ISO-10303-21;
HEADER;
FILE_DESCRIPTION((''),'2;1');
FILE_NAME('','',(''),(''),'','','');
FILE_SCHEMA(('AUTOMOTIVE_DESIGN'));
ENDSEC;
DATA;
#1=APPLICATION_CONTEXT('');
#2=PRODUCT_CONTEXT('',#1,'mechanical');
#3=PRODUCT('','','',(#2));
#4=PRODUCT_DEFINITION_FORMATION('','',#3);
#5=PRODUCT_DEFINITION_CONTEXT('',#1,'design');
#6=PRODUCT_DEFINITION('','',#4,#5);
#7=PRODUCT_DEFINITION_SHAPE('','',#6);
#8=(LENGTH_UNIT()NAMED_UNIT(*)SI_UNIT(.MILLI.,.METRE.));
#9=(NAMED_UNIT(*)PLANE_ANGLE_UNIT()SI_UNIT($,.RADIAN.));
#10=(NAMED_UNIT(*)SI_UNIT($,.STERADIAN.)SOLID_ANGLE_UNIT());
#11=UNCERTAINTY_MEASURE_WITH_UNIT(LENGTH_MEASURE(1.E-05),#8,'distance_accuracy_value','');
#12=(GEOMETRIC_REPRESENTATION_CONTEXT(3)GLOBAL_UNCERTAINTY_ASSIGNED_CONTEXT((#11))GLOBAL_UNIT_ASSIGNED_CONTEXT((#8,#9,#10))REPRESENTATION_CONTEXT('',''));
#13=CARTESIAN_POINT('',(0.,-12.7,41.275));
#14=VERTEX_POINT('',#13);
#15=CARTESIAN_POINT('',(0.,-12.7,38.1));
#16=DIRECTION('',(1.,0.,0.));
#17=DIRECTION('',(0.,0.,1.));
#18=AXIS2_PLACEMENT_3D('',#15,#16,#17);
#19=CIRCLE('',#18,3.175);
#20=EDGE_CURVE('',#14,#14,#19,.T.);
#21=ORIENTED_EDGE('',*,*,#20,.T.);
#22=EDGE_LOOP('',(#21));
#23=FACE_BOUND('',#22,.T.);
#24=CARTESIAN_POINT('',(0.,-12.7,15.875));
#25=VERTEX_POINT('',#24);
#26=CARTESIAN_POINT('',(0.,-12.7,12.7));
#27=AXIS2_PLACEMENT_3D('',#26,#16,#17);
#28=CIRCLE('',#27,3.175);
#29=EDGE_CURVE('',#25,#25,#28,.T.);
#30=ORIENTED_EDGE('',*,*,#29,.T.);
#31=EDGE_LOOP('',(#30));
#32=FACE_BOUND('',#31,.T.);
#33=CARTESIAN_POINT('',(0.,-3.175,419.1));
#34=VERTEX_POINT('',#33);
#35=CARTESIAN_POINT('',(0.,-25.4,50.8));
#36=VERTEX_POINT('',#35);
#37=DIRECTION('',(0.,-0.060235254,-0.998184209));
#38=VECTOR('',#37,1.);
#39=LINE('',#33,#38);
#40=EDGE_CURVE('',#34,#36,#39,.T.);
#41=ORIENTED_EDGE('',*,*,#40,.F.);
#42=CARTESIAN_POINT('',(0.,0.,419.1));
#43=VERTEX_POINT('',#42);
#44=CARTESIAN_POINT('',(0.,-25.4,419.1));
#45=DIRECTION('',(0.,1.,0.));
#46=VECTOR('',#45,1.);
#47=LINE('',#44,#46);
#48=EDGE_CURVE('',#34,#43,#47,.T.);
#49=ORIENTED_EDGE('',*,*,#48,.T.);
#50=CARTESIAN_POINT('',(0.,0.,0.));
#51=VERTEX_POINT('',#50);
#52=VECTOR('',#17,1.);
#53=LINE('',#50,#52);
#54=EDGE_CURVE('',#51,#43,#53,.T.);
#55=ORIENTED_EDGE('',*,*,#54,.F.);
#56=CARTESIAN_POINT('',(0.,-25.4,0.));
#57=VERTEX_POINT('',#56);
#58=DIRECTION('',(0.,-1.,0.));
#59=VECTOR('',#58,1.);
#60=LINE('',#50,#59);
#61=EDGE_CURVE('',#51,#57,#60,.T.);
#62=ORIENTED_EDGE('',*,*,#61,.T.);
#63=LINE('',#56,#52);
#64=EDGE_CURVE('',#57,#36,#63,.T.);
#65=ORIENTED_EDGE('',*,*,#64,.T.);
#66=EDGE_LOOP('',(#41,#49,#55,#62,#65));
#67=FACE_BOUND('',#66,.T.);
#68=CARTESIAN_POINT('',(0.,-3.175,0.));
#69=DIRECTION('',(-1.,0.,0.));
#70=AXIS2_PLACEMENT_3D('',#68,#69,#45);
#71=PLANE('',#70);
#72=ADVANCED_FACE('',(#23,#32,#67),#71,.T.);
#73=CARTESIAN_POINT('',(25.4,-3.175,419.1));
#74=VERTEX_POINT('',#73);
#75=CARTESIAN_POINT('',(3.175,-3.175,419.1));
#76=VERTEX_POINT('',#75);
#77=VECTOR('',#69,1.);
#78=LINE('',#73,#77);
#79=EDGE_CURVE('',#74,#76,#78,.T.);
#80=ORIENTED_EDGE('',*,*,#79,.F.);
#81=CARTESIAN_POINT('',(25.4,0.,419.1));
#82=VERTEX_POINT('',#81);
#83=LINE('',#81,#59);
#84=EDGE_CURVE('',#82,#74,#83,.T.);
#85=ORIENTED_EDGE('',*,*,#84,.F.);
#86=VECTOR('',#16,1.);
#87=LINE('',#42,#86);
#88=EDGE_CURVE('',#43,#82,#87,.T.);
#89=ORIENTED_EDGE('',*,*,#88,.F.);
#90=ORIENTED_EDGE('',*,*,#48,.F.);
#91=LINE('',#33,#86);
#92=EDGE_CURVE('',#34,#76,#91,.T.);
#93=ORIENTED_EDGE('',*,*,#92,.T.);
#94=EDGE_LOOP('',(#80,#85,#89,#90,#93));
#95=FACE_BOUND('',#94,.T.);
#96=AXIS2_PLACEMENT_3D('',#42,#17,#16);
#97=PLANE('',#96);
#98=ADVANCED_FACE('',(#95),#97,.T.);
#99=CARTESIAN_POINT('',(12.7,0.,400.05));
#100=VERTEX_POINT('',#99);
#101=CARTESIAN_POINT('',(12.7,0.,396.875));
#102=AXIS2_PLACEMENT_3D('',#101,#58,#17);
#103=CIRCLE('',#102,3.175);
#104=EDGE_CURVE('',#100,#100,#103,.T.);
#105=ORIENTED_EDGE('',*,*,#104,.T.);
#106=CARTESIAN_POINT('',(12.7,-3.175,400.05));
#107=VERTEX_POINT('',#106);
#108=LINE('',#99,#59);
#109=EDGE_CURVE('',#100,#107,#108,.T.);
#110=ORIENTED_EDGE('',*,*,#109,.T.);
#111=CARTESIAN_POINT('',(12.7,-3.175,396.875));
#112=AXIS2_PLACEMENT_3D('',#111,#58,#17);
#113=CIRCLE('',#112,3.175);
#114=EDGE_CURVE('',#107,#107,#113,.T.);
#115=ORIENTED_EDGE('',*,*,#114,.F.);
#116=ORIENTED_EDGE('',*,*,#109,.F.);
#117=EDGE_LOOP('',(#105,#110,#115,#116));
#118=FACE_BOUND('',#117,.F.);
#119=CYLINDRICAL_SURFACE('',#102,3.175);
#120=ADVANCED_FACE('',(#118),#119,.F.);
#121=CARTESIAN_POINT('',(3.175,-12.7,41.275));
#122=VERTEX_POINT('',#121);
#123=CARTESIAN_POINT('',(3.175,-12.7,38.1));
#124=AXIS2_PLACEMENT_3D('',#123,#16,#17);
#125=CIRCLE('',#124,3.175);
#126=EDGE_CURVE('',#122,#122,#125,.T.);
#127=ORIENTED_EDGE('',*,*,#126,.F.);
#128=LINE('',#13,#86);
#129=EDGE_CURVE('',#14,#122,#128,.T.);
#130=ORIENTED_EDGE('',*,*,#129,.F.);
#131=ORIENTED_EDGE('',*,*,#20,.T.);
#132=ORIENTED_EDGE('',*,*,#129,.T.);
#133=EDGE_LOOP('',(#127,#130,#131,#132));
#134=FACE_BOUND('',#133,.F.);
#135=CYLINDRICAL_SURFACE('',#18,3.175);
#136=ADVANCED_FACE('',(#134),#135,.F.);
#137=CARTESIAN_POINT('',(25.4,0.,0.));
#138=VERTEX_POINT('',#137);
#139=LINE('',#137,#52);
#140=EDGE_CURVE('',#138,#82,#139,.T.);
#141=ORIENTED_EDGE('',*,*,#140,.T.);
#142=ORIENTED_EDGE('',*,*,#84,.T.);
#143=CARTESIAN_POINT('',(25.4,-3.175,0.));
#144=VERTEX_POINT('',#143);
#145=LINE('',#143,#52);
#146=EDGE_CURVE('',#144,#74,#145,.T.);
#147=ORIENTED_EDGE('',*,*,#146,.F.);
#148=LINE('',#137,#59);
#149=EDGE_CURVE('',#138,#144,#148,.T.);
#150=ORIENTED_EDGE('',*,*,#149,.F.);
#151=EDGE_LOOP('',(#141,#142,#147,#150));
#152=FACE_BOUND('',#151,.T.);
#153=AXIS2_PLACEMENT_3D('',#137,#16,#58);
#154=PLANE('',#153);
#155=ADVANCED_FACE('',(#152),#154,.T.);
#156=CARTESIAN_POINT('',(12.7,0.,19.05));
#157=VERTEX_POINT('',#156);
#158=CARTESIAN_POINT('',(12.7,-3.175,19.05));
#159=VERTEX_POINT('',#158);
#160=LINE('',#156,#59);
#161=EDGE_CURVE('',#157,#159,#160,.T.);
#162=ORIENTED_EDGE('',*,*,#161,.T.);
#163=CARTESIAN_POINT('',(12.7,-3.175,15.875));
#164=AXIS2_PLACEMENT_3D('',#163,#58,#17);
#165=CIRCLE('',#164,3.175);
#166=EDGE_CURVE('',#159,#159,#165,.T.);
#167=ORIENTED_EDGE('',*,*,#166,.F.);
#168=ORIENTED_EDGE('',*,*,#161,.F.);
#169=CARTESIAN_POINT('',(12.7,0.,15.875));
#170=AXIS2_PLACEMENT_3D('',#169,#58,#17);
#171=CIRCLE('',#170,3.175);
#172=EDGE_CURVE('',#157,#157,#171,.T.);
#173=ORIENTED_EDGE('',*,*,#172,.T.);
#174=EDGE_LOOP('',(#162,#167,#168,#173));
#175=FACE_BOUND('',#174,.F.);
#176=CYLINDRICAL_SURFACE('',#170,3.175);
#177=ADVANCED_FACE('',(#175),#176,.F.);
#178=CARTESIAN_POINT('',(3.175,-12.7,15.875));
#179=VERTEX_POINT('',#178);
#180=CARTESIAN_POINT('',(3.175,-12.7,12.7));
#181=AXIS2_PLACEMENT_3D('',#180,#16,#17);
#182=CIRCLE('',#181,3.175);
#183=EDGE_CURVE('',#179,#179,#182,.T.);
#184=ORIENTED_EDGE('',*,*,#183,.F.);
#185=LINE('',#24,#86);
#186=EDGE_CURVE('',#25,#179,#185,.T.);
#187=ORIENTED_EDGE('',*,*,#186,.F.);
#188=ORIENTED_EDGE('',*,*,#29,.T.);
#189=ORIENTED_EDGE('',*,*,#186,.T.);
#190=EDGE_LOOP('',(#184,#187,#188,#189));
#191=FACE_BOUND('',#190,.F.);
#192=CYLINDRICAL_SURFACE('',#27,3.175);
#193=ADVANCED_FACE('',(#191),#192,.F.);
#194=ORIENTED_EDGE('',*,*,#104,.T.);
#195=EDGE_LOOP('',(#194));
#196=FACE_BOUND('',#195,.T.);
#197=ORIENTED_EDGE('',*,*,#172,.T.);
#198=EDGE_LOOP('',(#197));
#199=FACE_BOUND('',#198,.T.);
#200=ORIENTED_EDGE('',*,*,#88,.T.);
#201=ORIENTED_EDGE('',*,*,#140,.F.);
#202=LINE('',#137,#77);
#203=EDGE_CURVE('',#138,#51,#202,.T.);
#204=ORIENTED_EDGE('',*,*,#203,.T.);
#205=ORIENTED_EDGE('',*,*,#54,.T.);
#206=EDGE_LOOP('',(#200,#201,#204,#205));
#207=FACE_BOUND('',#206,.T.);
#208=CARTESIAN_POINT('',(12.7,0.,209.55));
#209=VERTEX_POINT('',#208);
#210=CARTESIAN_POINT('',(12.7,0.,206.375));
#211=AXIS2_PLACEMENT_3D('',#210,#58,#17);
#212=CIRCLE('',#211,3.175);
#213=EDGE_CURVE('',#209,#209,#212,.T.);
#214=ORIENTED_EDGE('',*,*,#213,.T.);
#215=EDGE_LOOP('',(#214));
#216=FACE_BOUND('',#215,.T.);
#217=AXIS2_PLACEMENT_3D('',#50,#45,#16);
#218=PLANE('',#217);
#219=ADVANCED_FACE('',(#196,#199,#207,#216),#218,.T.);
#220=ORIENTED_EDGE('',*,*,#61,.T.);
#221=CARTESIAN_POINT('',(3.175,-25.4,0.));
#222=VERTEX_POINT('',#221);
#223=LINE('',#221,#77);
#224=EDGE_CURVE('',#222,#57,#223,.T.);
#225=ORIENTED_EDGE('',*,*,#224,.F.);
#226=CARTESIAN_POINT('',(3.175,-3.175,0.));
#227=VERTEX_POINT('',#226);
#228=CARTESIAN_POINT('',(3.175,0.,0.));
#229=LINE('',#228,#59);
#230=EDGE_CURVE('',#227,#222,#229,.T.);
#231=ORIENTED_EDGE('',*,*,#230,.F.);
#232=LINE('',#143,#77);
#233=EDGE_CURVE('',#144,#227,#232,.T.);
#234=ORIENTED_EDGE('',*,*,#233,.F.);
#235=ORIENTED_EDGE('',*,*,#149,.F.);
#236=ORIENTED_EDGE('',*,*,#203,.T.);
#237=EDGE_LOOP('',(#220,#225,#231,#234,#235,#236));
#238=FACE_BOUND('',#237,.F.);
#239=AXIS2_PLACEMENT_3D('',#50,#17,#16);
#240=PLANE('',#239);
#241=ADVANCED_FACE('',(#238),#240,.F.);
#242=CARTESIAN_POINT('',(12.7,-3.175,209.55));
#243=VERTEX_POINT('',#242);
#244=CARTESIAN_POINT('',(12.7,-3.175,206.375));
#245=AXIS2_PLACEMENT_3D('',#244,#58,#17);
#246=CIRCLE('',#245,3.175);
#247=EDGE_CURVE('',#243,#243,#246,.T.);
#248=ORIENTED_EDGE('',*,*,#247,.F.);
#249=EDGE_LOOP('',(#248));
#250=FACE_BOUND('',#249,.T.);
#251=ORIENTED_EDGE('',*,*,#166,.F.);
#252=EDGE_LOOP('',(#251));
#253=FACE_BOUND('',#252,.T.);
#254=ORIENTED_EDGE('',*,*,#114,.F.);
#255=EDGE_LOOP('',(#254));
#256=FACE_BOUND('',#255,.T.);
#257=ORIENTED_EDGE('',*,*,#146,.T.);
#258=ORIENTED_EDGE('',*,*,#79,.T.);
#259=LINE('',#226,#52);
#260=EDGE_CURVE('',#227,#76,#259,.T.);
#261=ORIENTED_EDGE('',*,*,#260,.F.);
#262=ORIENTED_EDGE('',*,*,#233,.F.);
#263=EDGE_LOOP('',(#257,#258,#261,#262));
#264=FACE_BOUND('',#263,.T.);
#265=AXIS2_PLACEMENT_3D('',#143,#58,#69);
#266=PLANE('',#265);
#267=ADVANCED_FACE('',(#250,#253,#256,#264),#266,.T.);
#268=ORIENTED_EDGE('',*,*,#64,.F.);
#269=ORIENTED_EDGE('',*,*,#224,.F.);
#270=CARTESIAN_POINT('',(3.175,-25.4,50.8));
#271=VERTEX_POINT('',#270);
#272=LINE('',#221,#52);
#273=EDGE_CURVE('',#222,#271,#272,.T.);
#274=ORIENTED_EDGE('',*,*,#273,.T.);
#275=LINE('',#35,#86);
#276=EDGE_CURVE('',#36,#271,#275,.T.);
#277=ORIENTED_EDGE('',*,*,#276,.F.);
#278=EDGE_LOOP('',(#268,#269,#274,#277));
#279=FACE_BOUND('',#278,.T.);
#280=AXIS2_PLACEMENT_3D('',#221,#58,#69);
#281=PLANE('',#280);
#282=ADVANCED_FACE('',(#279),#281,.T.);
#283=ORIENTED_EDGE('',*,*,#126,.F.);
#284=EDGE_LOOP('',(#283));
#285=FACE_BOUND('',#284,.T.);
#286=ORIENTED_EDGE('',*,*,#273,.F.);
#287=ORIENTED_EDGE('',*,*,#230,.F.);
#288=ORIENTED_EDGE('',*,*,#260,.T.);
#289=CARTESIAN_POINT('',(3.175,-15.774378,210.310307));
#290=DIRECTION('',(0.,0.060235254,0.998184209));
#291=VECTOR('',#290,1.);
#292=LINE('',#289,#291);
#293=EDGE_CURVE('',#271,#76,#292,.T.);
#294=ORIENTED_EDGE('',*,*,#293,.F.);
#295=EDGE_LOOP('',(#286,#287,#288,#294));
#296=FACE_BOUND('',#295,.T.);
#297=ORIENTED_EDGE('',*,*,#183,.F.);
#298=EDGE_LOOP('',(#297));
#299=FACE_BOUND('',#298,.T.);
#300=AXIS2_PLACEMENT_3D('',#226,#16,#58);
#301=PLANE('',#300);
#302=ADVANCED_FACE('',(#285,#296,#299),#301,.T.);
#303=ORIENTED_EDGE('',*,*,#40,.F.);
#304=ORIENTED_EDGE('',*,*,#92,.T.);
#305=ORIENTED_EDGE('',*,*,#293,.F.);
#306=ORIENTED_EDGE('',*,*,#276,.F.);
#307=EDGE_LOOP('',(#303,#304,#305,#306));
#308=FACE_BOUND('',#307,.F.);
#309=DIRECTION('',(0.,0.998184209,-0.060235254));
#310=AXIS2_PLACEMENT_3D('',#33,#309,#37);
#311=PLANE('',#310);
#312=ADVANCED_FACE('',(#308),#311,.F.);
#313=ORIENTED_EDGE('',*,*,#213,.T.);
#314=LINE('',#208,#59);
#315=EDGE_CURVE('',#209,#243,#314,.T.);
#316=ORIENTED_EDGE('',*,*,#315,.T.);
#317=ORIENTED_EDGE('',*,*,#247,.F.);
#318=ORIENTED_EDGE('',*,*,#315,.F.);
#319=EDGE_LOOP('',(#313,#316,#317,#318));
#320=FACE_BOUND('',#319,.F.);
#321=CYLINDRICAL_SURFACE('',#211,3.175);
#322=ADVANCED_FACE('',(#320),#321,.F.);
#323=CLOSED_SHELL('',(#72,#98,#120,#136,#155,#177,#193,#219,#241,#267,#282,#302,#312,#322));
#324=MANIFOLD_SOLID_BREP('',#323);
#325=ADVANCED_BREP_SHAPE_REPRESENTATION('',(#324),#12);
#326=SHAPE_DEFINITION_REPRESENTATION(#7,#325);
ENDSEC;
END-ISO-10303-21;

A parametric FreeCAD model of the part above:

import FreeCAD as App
import Part
import Sketcher
Q = App.Units.Quantity


def add_polygon(sketch, points):
    """Adds a closed chain of lines whose ends are joined by coincident constraints."""
    first, n = sketch.GeometryCount, len(points)
    for a, b in zip(points, points[1:] + points[:1]):
        sketch.addGeometry(Part.LineSegment(App.Vector(*a, 0), App.Vector(*b, 0)), False)
    for i in range(n):
        sketch.addConstraint(Sketcher.Constraint("Coincident", first + i, 2, first + (i + 1) % n, 1))

doc = App.newDocument("Part")
body = doc.addObject("PartDesign::Body", "Body")

sketch1 = doc.addObject("Sketcher::SketchObject", "Sketch")
body.addObject(sketch1)
sketch1.AttachmentSupport = (doc.XY_Plane, [""])
sketch1.MapMode = "FlatFace"
add_polygon(sketch1, [(0, 0), (0, -25.4), (3.2, -25.4), (3.2, -3.2), (25.4, -3.2), (25.4, 0)])
sketch1.addConstraint(Sketcher.Constraint("Vertical", 0))
sketch1.addConstraint(Sketcher.Constraint("Horizontal", 1))
sketch1.addConstraint(Sketcher.Constraint("Vertical", 2))
sketch1.addConstraint(Sketcher.Constraint("Horizontal", 3))
sketch1.addConstraint(Sketcher.Constraint("Vertical", 4))
sketch1.addConstraint(Sketcher.Constraint("Horizontal", 5))
sketch1.addConstraint(Sketcher.Constraint("Coincident", 5, 2, -1, 1))
sketch1.addConstraint(Sketcher.Constraint("Equal", 5, 0))
sketch1.addConstraint(Sketcher.Constraint("Equal", 3, 2))
sketch1.addConstraint(Sketcher.Constraint("DistanceX", 5, 2, 5, 1, Q("1 in")))
sketch1.addConstraint(Sketcher.Constraint("DistanceX", 1, 1, 1, 2, Q("0.125 in")))
pad1 = doc.addObject("PartDesign::Pad", "Pad")
body.addObject(pad1)
pad1.Profile = sketch1
pad1.Length = Q("16.5 in")

sketch2 = doc.addObject("Sketcher::SketchObject", "Sketch001")
body.addObject(sketch2)
sketch2.AttachmentSupport = (doc.YZ_Plane, [""])
sketch2.MapMode = "FlatFace"
add_polygon(sketch2, [(-25, 419), (-3, 419), (-25, 51)])
sketch2.addConstraint(Sketcher.Constraint("Horizontal", 0))
sketch2.addConstraint(Sketcher.Constraint("Vertical", 2))
sketch2.addConstraint(Sketcher.Constraint("DistanceY", -1, 1, 1, 2, Q("2 in")))
sketch2.addConstraint(Sketcher.Constraint("DistanceY", 2, 1, 2, 2, Q("14.5 in")))
sketch2.addConstraint(Sketcher.Constraint("DistanceX", 0, 2, -1, 1, Q("0.125 in")))
sketch2.addConstraint(Sketcher.Constraint("DistanceX", 1, 2, -1, 1, Q("1 in")))
pocket1 = doc.addObject("PartDesign::Pocket", "Pocket")
body.addObject(pocket1)
pocket1.Profile = sketch2
pocket1.Length = Q("17 in")
pocket1.Reversed = True

sketch3 = doc.addObject("Sketcher::SketchObject", "Sketch002")
body.addObject(sketch3)
sketch3.AttachmentSupport = (doc.YZ_Plane, [""])
sketch3.MapMode = "FlatFace"
sketch3.addGeometry(Part.Circle(App.Vector(-12.7, 12.7, 0), App.Vector(0, 0, 1), 3.2), False)
sketch3.addGeometry(Part.Circle(App.Vector(-12.7, 38.1, 0), App.Vector(0, 0, 1), 3.2), False)
sketch3.addConstraint(Sketcher.Constraint("Equal", 0, 1))
sketch3.addConstraint(Sketcher.Constraint("Vertical", 0, 3, 1, 3))
sketch3.addConstraint(Sketcher.Constraint("Diameter", 0, Q("0.25 in")))
sketch3.addConstraint(Sketcher.Constraint("DistanceY", 0, 3, 1, 3, Q("1 in")))
sketch3.addConstraint(Sketcher.Constraint("DistanceX", 0, 3, -1, 1, Q("0.5 in")))
sketch3.addConstraint(Sketcher.Constraint("DistanceY", -1, 1, 0, 3, Q("0.5 in")))
doc.recompute()
hole = doc.addObject("PartDesign::Hole", "Hole")
body.addObject(hole)
hole.Profile = sketch3
hole.ThreadType = "None"
hole.Diameter = Q("0.25 in")
hole.DepthType = "ThroughAll"
hole.Reversed = True

sketch4 = doc.addObject("Sketcher::SketchObject", "Sketch003")
body.addObject(sketch4)
sketch4.AttachmentSupport = (doc.XZ_Plane, [""])
sketch4.MapMode = "FlatFace"
sketch4.addGeometry(Part.Circle(App.Vector(12.7, 15.9, 0), App.Vector(0, 0, 1), 3.2), False)
sketch4.addGeometry(Part.Circle(App.Vector(12.7, 206.4, 0), App.Vector(0, 0, 1), 3.2), False)
sketch4.addGeometry(Part.Circle(App.Vector(12.7, 396.9, 0), App.Vector(0, 0, 1), 3.2), False)
sketch4.addConstraint(Sketcher.Constraint("Equal", 0, 1))
sketch4.addConstraint(Sketcher.Constraint("Equal", 1, 2))
sketch4.addConstraint(Sketcher.Constraint("Vertical", 0, 3, 1, 3))
sketch4.addConstraint(Sketcher.Constraint("Vertical", 1, 3, 2, 3))
sketch4.addConstraint(Sketcher.Constraint("Diameter", 0, Q("0.25 in")))
sketch4.addConstraint(Sketcher.Constraint("DistanceY", 0, 3, 2, 3, Q("15 in")))
sketch4.addConstraint(Sketcher.Constraint("DistanceX", -1, 1, 0, 3, Q("0.5 in")))
sketch4.addConstraint(Sketcher.Constraint("DistanceY", 0, 3, 1, 3, Q("7.5 in")))
sketch4.addConstraint(Sketcher.Constraint("DistanceY", -1, 1, 0, 3, Q("0.625 in")))
doc.recompute()
hole2 = doc.addObject("PartDesign::Hole", "Hole001")
body.addObject(hole2)
hole2.Profile = sketch4
hole2.ThreadType = "None"
hole2.Diameter = Q("0.25 in")
hole2.DepthType = "ThroughAll"
hole2.Reversed = True

doc.recompute()
